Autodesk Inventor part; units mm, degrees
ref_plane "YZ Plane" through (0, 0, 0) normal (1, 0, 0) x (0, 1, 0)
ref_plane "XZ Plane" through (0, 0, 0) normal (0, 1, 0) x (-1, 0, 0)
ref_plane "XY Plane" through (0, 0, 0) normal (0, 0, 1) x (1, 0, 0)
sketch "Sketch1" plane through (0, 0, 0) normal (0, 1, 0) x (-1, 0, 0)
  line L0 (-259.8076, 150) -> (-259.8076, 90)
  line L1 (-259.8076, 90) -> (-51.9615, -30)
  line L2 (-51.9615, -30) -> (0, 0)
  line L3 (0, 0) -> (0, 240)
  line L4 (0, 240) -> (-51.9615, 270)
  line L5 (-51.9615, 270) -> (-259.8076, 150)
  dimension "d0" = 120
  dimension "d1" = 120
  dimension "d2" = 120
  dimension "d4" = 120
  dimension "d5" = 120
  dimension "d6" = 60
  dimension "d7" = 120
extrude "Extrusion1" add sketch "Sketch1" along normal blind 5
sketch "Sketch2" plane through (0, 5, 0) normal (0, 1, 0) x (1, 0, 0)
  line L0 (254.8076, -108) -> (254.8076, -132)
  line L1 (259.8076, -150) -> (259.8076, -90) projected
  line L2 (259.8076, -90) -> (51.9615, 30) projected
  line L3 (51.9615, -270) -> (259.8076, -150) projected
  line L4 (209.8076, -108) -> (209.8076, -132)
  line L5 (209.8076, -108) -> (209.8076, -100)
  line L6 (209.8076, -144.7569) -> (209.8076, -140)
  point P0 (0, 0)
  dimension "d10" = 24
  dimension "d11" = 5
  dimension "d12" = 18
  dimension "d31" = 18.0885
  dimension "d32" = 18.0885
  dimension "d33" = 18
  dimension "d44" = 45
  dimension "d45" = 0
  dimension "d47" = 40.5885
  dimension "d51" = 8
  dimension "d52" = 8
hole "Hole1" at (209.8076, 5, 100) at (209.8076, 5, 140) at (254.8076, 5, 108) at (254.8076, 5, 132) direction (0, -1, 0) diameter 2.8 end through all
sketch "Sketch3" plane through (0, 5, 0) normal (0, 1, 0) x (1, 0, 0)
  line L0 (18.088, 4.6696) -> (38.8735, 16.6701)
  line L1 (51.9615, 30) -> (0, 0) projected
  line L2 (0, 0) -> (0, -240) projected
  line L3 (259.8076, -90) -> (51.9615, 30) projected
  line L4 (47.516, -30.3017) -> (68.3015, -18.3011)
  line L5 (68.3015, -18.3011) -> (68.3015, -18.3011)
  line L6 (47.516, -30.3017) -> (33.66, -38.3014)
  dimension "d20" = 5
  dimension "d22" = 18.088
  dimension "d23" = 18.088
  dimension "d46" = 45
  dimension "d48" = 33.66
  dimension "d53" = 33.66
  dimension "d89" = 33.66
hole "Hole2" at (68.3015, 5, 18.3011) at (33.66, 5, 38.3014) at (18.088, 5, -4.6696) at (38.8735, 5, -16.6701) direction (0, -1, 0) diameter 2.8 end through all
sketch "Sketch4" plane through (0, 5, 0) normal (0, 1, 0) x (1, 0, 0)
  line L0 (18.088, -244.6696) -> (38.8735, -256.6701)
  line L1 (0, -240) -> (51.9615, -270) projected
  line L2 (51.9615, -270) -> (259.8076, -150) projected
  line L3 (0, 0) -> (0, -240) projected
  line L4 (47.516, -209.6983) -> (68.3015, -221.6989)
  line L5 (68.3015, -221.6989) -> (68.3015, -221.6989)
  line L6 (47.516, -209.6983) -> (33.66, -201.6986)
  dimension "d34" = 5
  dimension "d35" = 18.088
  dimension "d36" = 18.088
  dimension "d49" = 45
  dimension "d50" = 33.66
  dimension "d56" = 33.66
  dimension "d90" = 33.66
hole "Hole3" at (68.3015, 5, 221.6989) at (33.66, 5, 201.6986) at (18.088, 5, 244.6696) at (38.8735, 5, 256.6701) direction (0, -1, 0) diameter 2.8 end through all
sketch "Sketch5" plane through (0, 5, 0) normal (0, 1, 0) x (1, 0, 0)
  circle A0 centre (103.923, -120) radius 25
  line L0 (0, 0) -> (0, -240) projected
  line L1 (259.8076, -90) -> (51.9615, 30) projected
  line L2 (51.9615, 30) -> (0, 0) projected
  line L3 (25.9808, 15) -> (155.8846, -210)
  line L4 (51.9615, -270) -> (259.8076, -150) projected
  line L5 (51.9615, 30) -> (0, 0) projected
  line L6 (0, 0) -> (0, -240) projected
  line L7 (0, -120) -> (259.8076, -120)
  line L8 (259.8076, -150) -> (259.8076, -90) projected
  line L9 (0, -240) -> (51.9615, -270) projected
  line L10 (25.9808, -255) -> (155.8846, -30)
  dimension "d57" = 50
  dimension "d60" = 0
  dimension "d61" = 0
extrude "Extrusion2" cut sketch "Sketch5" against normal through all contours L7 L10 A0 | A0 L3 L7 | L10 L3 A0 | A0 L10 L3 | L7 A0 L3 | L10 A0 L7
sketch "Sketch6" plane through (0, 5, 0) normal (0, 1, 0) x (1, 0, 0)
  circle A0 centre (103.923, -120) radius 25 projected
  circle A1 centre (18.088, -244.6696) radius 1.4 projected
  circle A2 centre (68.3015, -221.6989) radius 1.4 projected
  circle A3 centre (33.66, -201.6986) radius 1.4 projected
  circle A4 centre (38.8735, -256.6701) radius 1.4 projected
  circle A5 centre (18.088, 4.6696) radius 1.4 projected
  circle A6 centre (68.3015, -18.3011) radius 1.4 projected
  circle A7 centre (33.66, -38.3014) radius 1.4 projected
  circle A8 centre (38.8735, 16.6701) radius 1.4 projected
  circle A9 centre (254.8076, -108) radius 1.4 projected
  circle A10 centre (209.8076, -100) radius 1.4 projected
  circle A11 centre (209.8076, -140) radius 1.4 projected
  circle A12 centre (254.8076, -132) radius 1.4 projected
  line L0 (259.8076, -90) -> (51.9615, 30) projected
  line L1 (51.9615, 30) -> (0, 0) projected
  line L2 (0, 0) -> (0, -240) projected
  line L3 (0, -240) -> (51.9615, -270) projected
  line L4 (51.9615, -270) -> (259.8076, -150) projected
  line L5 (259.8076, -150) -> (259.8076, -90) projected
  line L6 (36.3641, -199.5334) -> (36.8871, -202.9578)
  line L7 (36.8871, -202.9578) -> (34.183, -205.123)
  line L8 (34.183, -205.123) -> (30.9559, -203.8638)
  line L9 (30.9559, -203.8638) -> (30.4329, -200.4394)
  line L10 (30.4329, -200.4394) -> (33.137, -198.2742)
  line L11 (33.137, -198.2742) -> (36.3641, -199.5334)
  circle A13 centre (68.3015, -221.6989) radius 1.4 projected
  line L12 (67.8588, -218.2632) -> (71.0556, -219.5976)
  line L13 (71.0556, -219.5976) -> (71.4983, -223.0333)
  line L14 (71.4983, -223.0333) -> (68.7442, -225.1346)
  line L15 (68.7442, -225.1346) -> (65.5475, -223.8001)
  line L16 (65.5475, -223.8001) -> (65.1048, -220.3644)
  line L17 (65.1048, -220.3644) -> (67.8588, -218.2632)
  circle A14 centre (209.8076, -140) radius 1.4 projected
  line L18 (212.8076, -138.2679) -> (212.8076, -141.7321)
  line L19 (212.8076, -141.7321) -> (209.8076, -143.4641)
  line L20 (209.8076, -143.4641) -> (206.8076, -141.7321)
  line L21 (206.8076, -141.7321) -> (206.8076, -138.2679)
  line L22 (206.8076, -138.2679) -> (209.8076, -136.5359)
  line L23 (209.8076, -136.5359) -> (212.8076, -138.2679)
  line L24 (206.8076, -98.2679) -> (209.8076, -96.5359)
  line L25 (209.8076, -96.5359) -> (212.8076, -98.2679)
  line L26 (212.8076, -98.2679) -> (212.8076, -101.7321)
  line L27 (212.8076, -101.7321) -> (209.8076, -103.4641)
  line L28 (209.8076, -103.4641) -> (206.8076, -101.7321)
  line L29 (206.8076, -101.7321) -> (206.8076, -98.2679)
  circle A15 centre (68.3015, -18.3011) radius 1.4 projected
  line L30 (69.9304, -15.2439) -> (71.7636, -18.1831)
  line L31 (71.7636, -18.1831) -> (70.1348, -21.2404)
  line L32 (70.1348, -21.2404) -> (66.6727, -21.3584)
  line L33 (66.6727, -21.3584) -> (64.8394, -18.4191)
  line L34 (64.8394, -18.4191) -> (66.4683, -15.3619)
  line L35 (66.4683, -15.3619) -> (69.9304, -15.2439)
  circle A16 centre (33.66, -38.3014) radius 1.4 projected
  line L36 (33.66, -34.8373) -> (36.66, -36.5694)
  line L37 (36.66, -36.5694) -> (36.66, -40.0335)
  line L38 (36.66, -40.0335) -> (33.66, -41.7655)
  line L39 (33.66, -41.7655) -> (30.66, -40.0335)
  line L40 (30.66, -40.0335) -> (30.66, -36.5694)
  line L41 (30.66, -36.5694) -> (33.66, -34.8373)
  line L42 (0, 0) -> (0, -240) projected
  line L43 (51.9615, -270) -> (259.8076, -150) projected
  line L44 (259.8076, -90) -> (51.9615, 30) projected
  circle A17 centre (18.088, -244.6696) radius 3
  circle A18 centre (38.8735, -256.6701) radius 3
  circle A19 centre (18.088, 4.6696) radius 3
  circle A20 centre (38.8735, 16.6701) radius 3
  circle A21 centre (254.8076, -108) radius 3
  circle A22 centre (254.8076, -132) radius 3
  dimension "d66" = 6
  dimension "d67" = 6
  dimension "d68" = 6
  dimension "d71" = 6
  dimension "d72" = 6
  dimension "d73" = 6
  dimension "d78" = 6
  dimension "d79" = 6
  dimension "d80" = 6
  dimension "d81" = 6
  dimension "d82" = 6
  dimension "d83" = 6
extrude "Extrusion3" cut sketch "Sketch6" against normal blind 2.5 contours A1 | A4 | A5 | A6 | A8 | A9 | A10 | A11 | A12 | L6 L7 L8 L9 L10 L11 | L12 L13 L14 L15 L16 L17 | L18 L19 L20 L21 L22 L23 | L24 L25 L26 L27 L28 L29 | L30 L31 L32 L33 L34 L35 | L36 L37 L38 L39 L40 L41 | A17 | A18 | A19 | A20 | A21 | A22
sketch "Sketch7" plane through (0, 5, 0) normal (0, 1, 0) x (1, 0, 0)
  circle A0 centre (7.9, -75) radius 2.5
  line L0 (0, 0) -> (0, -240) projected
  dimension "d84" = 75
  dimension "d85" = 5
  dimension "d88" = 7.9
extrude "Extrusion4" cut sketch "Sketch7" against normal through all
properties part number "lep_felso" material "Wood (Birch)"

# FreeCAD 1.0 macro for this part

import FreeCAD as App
import Part
import Sketcher
Q = App.Units.Quantity


def add_polygon(sketch, points):
    """Adds a closed chain of lines whose ends are joined by coincident constraints."""
    first, n = sketch.GeometryCount, len(points)
    for a, b in zip(points, points[1:] + points[:1]):
        sketch.addGeometry(Part.LineSegment(App.Vector(*a, 0), App.Vector(*b, 0)), False)
    for i in range(n):
        sketch.addConstraint(Sketcher.Constraint("Coincident", first + i, 2, first + (i + 1) % n, 1))

doc = App.newDocument("Part")
body = doc.addObject("PartDesign::Body", "Body")

# Sketch on XZ plane
sketch1 = body.newObject("Sketcher::SketchObject", "Sketch")
sketch1.AttachmentSupport = (doc.getObject("XZ_Plane"), [""])
sketch1.MapMode = "FlatFace"
add_polygon(sketch1, [(52, 270), (260, 150), (260, 90), (52, -30), (0, 0), (0, 240)])  # lines 0-5
sketch1.addConstraint(Sketcher.Constraint("Vertical", 1))
sketch1.addConstraint(Sketcher.Constraint("Vertical", 4))
sketch1.addConstraint(Sketcher.Constraint("Coincident", 3, 2, -1, 1))
sketch1.addConstraint(Sketcher.Constraint("Parallel", 0, 3))
sketch1.addConstraint(Sketcher.Constraint("Parallel", 2, 5))
sketch1.addConstraint(Sketcher.Constraint("Vertical", 2, 2, 5, 2))
sketch1.addConstraint(Sketcher.Constraint("Equal", 0, 2))
sketch1.addConstraint(Sketcher.Constraint("DistanceY", 1, 2, 1, 1, Q("60 mm")))
sketch1.addConstraint(Sketcher.Constraint("Distance", 3, Q("60 mm")))
sketch1.addConstraint(Sketcher.Constraint("DistanceY", 2, 2, 1, 2, Q("120 mm")))
sketch1.addConstraint(Sketcher.Constraint("DistanceY", 4, 1, 4, 2, Q("240 mm")))
pad1 = body.newObject("PartDesign::Pad", "Pad")
pad1.Profile = sketch1
pad1.Length = 5
pad1.Reversed = True

# Sketch on XZ plane
sketch2 = body.newObject("Sketcher::SketchObject", "Sketch001")
sketch2.AttachmentSupport = (doc.getObject("XZ_Plane"), [""])
sketch2.MapMode = "FlatFace"
sketch2.AttachmentOffset = App.Placement(App.Vector(0, 0, -5), App.Rotation())
sketch2.addGeometry(Part.Circle(App.Vector(209.8, 100, 0), App.Vector(0, 0, 1), 1.4), False)
sketch2.addGeometry(Part.Circle(App.Vector(209.8, 140, 0), App.Vector(0, 0, 1), 1.4), False)
sketch2.addGeometry(Part.Circle(App.Vector(254.8, 108, 0), App.Vector(0, 0, 1), 1.4), False)
sketch2.addGeometry(Part.Circle(App.Vector(254.8, 132, 0), App.Vector(0, 0, 1), 1.4), False)
sketch2.addConstraint(Sketcher.Constraint("Equal", 0, 1))
sketch2.addConstraint(Sketcher.Constraint("Equal", 1, 2))
sketch2.addConstraint(Sketcher.Constraint("Equal", 2, 3))
sketch2.addConstraint(Sketcher.Constraint("Vertical", 0, 3, 1, 3))
sketch2.addConstraint(Sketcher.Constraint("Vertical", 2, 3, 3, 3))
sketch2.addConstraint(Sketcher.Constraint("Diameter", 0, Q("2.8 mm")))
sketch2.addConstraint(Sketcher.Constraint("DistanceY", -1, 1, 0, 3, Q("100 mm")))
sketch2.addConstraint(Sketcher.Constraint("DistanceY", -1, 1, 1, 3, Q("140 mm")))
sketch2.addConstraint(Sketcher.Constraint("DistanceY", -1, 1, 2, 3, Q("108 mm")))
sketch2.addConstraint(Sketcher.Constraint("DistanceY", -1, 1, 3, 3, Q("132 mm")))
sketch2.addConstraint(Sketcher.Constraint("DistanceX", 0, 3, 2, 3, Q("45 mm")))
sketch2.addConstraint(Sketcher.Constraint("DistanceX", -1, 1, 0, 3, Q("209.8076 mm")))
doc.recompute()
hole = body.newObject("PartDesign::Hole", "Hole")
hole.Profile = sketch2
hole.ThreadType = "None"
hole.Diameter = 2.8
hole.DepthType = "ThroughAll"
hole.Reversed = True

# Sketch on XZ plane
sketch3 = body.newObject("Sketcher::SketchObject", "Sketch002")
sketch3.AttachmentSupport = (doc.getObject("XZ_Plane"), [""])
sketch3.MapMode = "FlatFace"
sketch3.AttachmentOffset = App.Placement(App.Vector(0, 0, -5), App.Rotation())
sketch3.addGeometry(Part.Circle(App.Vector(68.3, 18.3, 0), App.Vector(0, 0, 1), 1.4), False)
sketch3.addGeometry(Part.Circle(App.Vector(33.7, 38.3, 0), App.Vector(0, 0, 1), 1.4), False)
sketch3.addGeometry(Part.Circle(App.Vector(18.1, -4.7, 0), App.Vector(0, 0, 1), 1.4), False)
sketch3.addGeometry(Part.Circle(App.Vector(38.9, -16.7, 0), App.Vector(0, 0, 1), 1.4), False)
sketch3.addConstraint(Sketcher.Constraint("Equal", 0, 1))
sketch3.addConstraint(Sketcher.Constraint("Equal", 1, 2))
sketch3.addConstraint(Sketcher.Constraint("Equal", 2, 3))
sketch3.addConstraint(Sketcher.Constraint("Diameter", 0, Q("2.8 mm")))
sketch3.addConstraint(Sketcher.Constraint("DistanceX", -1, 1, 1, 3, Q("33.66 mm")))
sketch3.addConstraint(Sketcher.Constraint("DistanceY", 3, 3, -1, 1, Q("16.67 mm")))
sketch3.addConstraint(Sketcher.Constraint("DistanceY", -1, 1, 0, 3, Q("18.301 mm")))
sketch3.addConstraint(Sketcher.Constraint("DistanceX", -1, 1, 2, 3, Q("18.088 mm")))
sketch3.addConstraint(Sketcher.Constraint("DistanceY", 2, 3, 1, 3, Q("42.971 mm")))
sketch3.addConstraint(Sketcher.Constraint("DistanceX", 3, 3, 0, 3, Q("29.428 mm")))
sketch3.addConstraint(Sketcher.Constraint("DistanceX", -1, 1, 0, 3, Q("68.3015 mm")))
sketch3.addConstraint(Sketcher.Constraint("DistanceY", -1, 1, 1, 3, Q("38.3014 mm")))
doc.recompute()
hole2 = body.newObject("PartDesign::Hole", "Hole001")
hole2.Profile = sketch3
hole2.ThreadType = "None"
hole2.Diameter = 2.8
hole2.DepthType = "ThroughAll"
hole2.Reversed = True

# Sketch on XZ plane
sketch4 = body.newObject("Sketcher::SketchObject", "Sketch003")
sketch4.AttachmentSupport = (doc.getObject("XZ_Plane"), [""])
sketch4.MapMode = "FlatFace"
sketch4.AttachmentOffset = App.Placement(App.Vector(0, 0, -5), App.Rotation())
sketch4.addGeometry(Part.Circle(App.Vector(68.3, 221.7, 0), App.Vector(0, 0, 1), 1.4), False)
sketch4.addGeometry(Part.Circle(App.Vector(33.7, 201.7, 0), App.Vector(0, 0, 1), 1.4), False)
sketch4.addGeometry(Part.Circle(App.Vector(18.1, 244.7, 0), App.Vector(0, 0, 1), 1.4), False)
sketch4.addGeometry(Part.Circle(App.Vector(38.9, 256.7, 0), App.Vector(0, 0, 1), 1.4), False)
sketch4.addConstraint(Sketcher.Constraint("Equal", 0, 1))
sketch4.addConstraint(Sketcher.Constraint("Equal", 1, 2))
sketch4.addConstraint(Sketcher.Constraint("Equal", 2, 3))
sketch4.addConstraint(Sketcher.Constraint("Diameter", 0, Q("2.8 mm")))
sketch4.addConstraint(Sketcher.Constraint("DistanceX", -1, 1, 1, 3, Q("33.66 mm")))
sketch4.addConstraint(Sketcher.Constraint("DistanceY", -1, 1, 3, 3, Q("256.67 mm")))
sketch4.addConstraint(Sketcher.Constraint("DistanceY", -1, 1, 0, 3, Q("221.699 mm")))
sketch4.addConstraint(Sketcher.Constraint("DistanceX", -1, 1, 2, 3, Q("18.088 mm")))
sketch4.addConstraint(Sketcher.Constraint("DistanceY", 1, 3, 2, 3, Q("42.971 mm")))
sketch4.addConstraint(Sketcher.Constraint("DistanceX", 3, 3, 0, 3, Q("29.428 mm")))
sketch4.addConstraint(Sketcher.Constraint("DistanceX", -1, 1, 0, 3, Q("68.3015 mm")))
sketch4.addConstraint(Sketcher.Constraint("DistanceY", -1, 1, 1, 3, Q("201.6986 mm")))
doc.recompute()
hole3 = body.newObject("PartDesign::Hole", "Hole002")
hole3.Profile = sketch4
hole3.ThreadType = "None"
hole3.Diameter = 2.8
hole3.DepthType = "ThroughAll"
hole3.Reversed = True

# Sketch on XZ plane
sketch5 = body.newObject("Sketcher::SketchObject", "Sketch004")
sketch5.AttachmentSupport = (doc.getObject("XZ_Plane"), [""])
sketch5.MapMode = "FlatFace"
sketch5.AttachmentOffset = App.Placement(App.Vector(0, 0, -5), App.Rotation())
sketch5.addGeometry(Part.Circle(App.Vector(104, 120, 0), App.Vector(0, 0, 1), 25), False)
sketch5.addConstraint(Sketcher.Constraint("Diameter", 0, Q("50 mm")))
sketch5.addConstraint(Sketcher.Constraint("DistanceY", -1, 1, 0, 3, Q("120 mm")))
sketch5.addConstraint(Sketcher.Constraint("DistanceX", -1, 1, 0, 3, Q("103.923 mm")))
pocket1 = body.newObject("PartDesign::Pocket", "Pocket")
pocket1.Profile = sketch5
pocket1.Type = "ThroughAll"
pocket1.Reversed = True

# Sketch on XZ plane
sketch6 = body.newObject("Sketcher::SketchObject", "Sketch005")
sketch6.AttachmentSupport = (doc.getObject("XZ_Plane"), [""])
sketch6.MapMode = "FlatFace"
sketch6.AttachmentOffset = App.Placement(App.Vector(0, 0, -5), App.Rotation())
sketch6.addGeometry(Part.Circle(App.Vector(18.1, 244.7, 0), App.Vector(0, 0, 1), 3), False)  # 0
sketch6.addGeometry(Part.Circle(App.Vector(38.9, 256.7, 0), App.Vector(0, 0, 1), 3), False)  # 1
sketch6.addGeometry(Part.Circle(App.Vector(18.1, -4.7, 0), App.Vector(0, 0, 1), 3), False)  # 2
add_polygon(sketch6, [(71.8, 18.2), (69.9, 15.2), (66.5, 15.4), (64.8, 18.4), (66.7, 21.4), (70.1, 21.2)])  # lines 3-8
sketch6.addGeometry(Part.Circle(App.Vector(38.9, -16.7, 0), App.Vector(0, 0, 1), 3), False)  # 9
sketch6.addGeometry(Part.Circle(App.Vector(254.8, 108, 0), App.Vector(0, 0, 1), 3), False)  # 10
add_polygon(sketch6, [(209.8, 96.5), (206.8, 98.3), (206.8, 101.7), (209.8, 103.5), (212.8, 101.7), (212.8, 98.3)])  # lines 11-16
add_polygon(sketch6, [(212.8, 141.7), (212.8, 138.3), (209.8, 136.5), (206.8, 138.3), (206.8, 141.7), (209.8, 143.5)])  # lines 17-22
sketch6.addGeometry(Part.Circle(App.Vector(254.8, 132, 0), App.Vector(0, 0, 1), 3), False)  # 23
add_polygon(sketch6, [(36.9, 203), (36.4, 199.5), (33.1, 198.3), (30.4, 200.4), (31, 203.9), (34.2, 205.1)])  # lines 24-29
sketch6.addGeometry(Part.Circle(App.Vector(33.7, 201.7, 0), App.Vector(0, 0, 1), 1.4), False)  # 30
add_polygon(sketch6, [(71.1, 219.6), (67.9, 218.3), (65.1, 220.4), (65.5, 223.8), (68.7, 225.1), (71.5, 223)])  # lines 31-36
sketch6.addGeometry(Part.Circle(App.Vector(68.3, 221.7, 0), App.Vector(0, 0, 1), 1.4), False)  # 37
add_polygon(sketch6, [(36.7, 36.6), (33.7, 34.8), (30.7, 36.6), (30.7, 40), (33.7, 41.8), (36.7, 40)])  # lines 38-43
sketch6.addGeometry(Part.Circle(App.Vector(33.7, 38.3, 0), App.Vector(0, 0, 1), 1.4), False)  # 44
sketch6.addConstraint(Sketcher.Constraint("Vertical", 12))
sketch6.addConstraint(Sketcher.Constraint("Vertical", 15))
sketch6.addConstraint(Sketcher.Constraint("Vertical", 17))
sketch6.addConstraint(Sketcher.Constraint("Vertical", 20))
sketch6.addConstraint(Sketcher.Constraint("Vertical", 40))
sketch6.addConstraint(Sketcher.Constraint("Vertical", 43))
sketch6.addConstraint(Sketcher.Constraint("Equal", 0, 1))
sketch6.addConstraint(Sketcher.Constraint("Equal", 1, 2))
sketch6.addConstraint(Sketcher.Constraint("Equal", 2, 9))
sketch6.addConstraint(Sketcher.Constraint("Equal", 9, 10))
sketch6.addConstraint(Sketcher.Constraint("Equal", 10, 23))
sketch6.addConstraint(Sketcher.Constraint("Equal", 30, 37))
sketch6.addConstraint(Sketcher.Constraint("Equal", 37, 44))
sketch6.addConstraint(Sketcher.Constraint("Parallel", 3, 6))
sketch6.addConstraint(Sketcher.Constraint("Parallel", 4, 7))
sketch6.addConstraint(Sketcher.Constraint("Parallel", 5, 8))
sketch6.addConstraint(Sketcher.Constraint("Parallel", 11, 14))
sketch6.addConstraint(Sketcher.Constraint("Parallel", 13, 16))
sketch6.addConstraint(Sketcher.Constraint("Parallel", 16, 18))
sketch6.addConstraint(Sketcher.Constraint("Parallel", 14, 19))
sketch6.addConstraint(Sketcher.Constraint("Parallel", 18, 21))
sketch6.addConstraint(Sketcher.Constraint("Parallel", 19, 22))
sketch6.addConstraint(Sketcher.Constraint("Parallel", 24, 27))
sketch6.addConstraint(Sketcher.Constraint("Parallel", 25, 28))
sketch6.addConstraint(Sketcher.Constraint("Parallel", 26, 29))
sketch6.addConstraint(Sketcher.Constraint("Parallel", 31, 34))
sketch6.addConstraint(Sketcher.Constraint("Parallel", 32, 35))
sketch6.addConstraint(Sketcher.Constraint("Parallel", 33, 36))
sketch6.addConstraint(Sketcher.Constraint("Parallel", 21, 38))
sketch6.addConstraint(Sketcher.Constraint("Parallel", 22, 39))
sketch6.addConstraint(Sketcher.Constraint("Parallel", 38, 41))
sketch6.addConstraint(Sketcher.Constraint("Parallel", 39, 42))
sketch6.addConstraint(Sketcher.Constraint("Horizontal", 12, 2, 14, 2))
sketch6.addConstraint(Sketcher.Constraint("Horizontal", 11, 2, 15, 2))
sketch6.addConstraint(Sketcher.Constraint("Horizontal", 17, 2, 19, 2))
sketch6.addConstraint(Sketcher.Constraint("Horizontal", 20, 2, 22, 2))
sketch6.addConstraint(Sketcher.Constraint("Horizontal", 40, 2, 42, 2))
sketch6.addConstraint(Sketcher.Constraint("Horizontal", 39, 2, 43, 2))
sketch6.addConstraint(Sketcher.Constraint("Vertical", 0, 3, 2, 3))
sketch6.addConstraint(Sketcher.Constraint("Vertical", 1, 3, 9, 3))
sketch6.addConstraint(Sketcher.Constraint("Vertical", 10, 3, 23, 3))
sketch6.addConstraint(Sketcher.Constraint("Vertical", 30, 3, 44, 3))
sketch6.addConstraint(Sketcher.Constraint("Vertical", 13, 2, 16, 2))
sketch6.addConstraint(Sketcher.Constraint("Vertical", 15, 2, 17, 2))
sketch6.addConstraint(Sketcher.Constraint("Vertical", 16, 2, 18, 2))
sketch6.addConstraint(Sketcher.Constraint("Vertical", 44, 3, 38, 2))
sketch6.addConstraint(Sketcher.Constraint("Equal", 15, 17))
sketch6.addConstraint(Sketcher.Constraint("Equal", 20, 40))
sketch6.addConstraint(Sketcher.Constraint("Equal", 3, 4))
sketch6.addConstraint(Sketcher.Constraint("Equal", 4, 5))
sketch6.addConstraint(Sketcher.Constraint("Equal", 5, 6))
sketch6.addConstraint(Sketcher.Constraint("Equal", 8, 11))
sketch6.addConstraint(Sketcher.Constraint("Equal", 22, 24))
sketch6.addConstraint(Sketcher.Constraint("Equal", 24, 25))
sketch6.addConstraint(Sketcher.Constraint("Equal", 25, 26))
sketch6.addConstraint(Sketcher.Constraint("Equal", 26, 27))
sketch6.addConstraint(Sketcher.Constraint("Equal", 29, 31))
sketch6.addConstraint(Sketcher.Constraint("Equal", 31, 32))
sketch6.addConstraint(Sketcher.Constraint("Equal", 32, 33))
sketch6.addConstraint(Sketcher.Constraint("Equal", 33, 34))
sketch6.addConstraint(Sketcher.Constraint("Equal", 36, 38))
sketch6.addConstraint(Sketcher.Constraint("Diameter", 0, Q("6 mm")))
sketch6.addConstraint(Sketcher.Constraint("DistanceX", 12, 2, 14, 2, Q("6 mm")))
sketch6.addConstraint(Sketcher.Constraint("Diameter", 30, Q("2.8 mm")))
sketch6.addConstraint(Sketcher.Constraint("Angle", 11, Q("150.0007 deg")))
sketch6.addConstraint(Sketcher.Constraint("DistanceY", -1, 1, 10, 3, Q("108 mm")))
sketch6.addConstraint(Sketcher.Constraint("DistanceY", -1, 1, 23, 3, Q("132 mm")))
sketch6.addConstraint(Sketcher.Constraint("DistanceX", 11, 2, 10, 3, Q("48 mm")))
sketch6.addConstraint(Sketcher.Constraint("DistanceY", 15, 2, 17, 2, Q("40 mm")))
sketch6.addConstraint(Sketcher.Constraint("DistanceY", -1, 1, 33, 2, Q("223.8 mm")))
sketch6.addConstraint(Sketcher.Constraint("Angle", 5, Q("118.049 deg")))
sketch6.addConstraint(Sketcher.Constraint("DistanceY", 40, 1, 40, 2, Q("3.464 mm")))
sketch6.addConstraint(Sketcher.Constraint("DistanceY", -1, 1, 1, 3, Q("256.67 mm")))
sketch6.addConstraint(Sketcher.Constraint("DistanceY", 9, 3, -1, 1, Q("16.67 mm")))
sketch6.addConstraint(Sketcher.Constraint("DistanceX", -1, 1, 30, 3, Q("33.66 mm")))
sketch6.addConstraint(Sketcher.Constraint("DistanceX", 26, 2, 28, 2, Q("3.75 mm")))
sketch6.addConstraint(Sketcher.Constraint("DistanceY", 31, 2, 35, 2, Q("4.77 mm")))
sketch6.addConstraint(Sketcher.Constraint("DistanceX", -1, 1, 0, 3, Q("18.088 mm")))
sketch6.addConstraint(Sketcher.Constraint("DistanceY", -1, 1, 37, 3, Q("221.699 mm")))
sketch6.addConstraint(Sketcher.Constraint("DistanceY", -1, 1, 3, 2, Q("15.244 mm")))
sketch6.addConstraint(Sketcher.Constraint("DistanceY", -1, 1, 4, 2, Q("15.362 mm")))
sketch6.addConstraint(Sketcher.Constraint("DistanceY", -1, 1, 8, 2, Q("18.183 mm")))
sketch6.addConstraint(Sketcher.Constraint("DistanceY", -1, 1, 11, 2, Q("98.268 mm")))
sketch6.addConstraint(Sketcher.Constraint("DistanceX", -1, 1, 24, 2, Q("36.364 mm")))
sketch6.addConstraint(Sketcher.Constraint("DistanceX", -1, 1, 25, 2, Q("33.137 mm")))
sketch6.addConstraint(Sketcher.Constraint("DistanceX", -1, 1, 26, 2, Q("30.433 mm")))
sketch6.addConstraint(Sketcher.Constraint("DistanceY", -1, 1, 28, 2, Q("205.123 mm")))
sketch6.addConstraint(Sketcher.Constraint("DistanceX", 9, 3, 10, 3, Q("215.934 mm")))
sketch6.addConstraint(Sketcher.Constraint("DistanceY", 30, 3, 0, 3, Q("42.971 mm")))
sketch6.addConstraint(Sketcher.Constraint("DistanceX", 1, 3, 37, 3, Q("29.428 mm")))
sketch6.addConstraint(Sketcher.Constraint("DistanceY", 2, 3, 44, 3, Q("42.971 mm")))
sketch6.addConstraint(Sketcher.Constraint("DistanceX", 9, 3, 3, 2, Q("31.057 mm")))
sketch6.addConstraint(Sketcher.Constraint("DistanceY", 6, 2, 44, 3, Q("16.943 mm")))
sketch6.addConstraint(Sketcher.Constraint("DistanceX", 32, 2, 31, 2, Q("2.754 mm")))
sketch6.addConstraint(Sketcher.Constraint("DistanceY", 24, 2, 32, 2, Q("20.831 mm")))
sketch6.addConstraint(Sketcher.Constraint("DistanceX", 33, 2, 37, 3, Q("2.754 mm")))
sketch6.addConstraint(Sketcher.Constraint("DistanceX", 29, 2, 34, 2, Q("31.857 mm")))
sketch6.addConstraint(Sketcher.Constraint("DistanceY", 38, 2, 44, 3, Q("3.464 mm")))
sketch6.addConstraint(Sketcher.Constraint("DistanceY", -1, 1, 0, 3, Q("244.6696 mm")))
pocket2 = body.newObject("PartDesign::Pocket", "Pocket001")
pocket2.Profile = sketch6
pocket2.Length = 2.5
pocket2.Reversed = True

# Sketch on XZ plane
sketch7 = body.newObject("Sketcher::SketchObject", "Sketch006")
sketch7.AttachmentSupport = (doc.getObject("XZ_Plane"), [""])
sketch7.MapMode = "FlatFace"
sketch7.AttachmentOffset = App.Placement(App.Vector(0, 0, -5), App.Rotation())
sketch7.addGeometry(Part.Circle(App.Vector(7.9, 75, 0), App.Vector(0, 0, 1), 2.5), False)
sketch7.addConstraint(Sketcher.Constraint("Diameter", 0, Q("5 mm")))
sketch7.addConstraint(Sketcher.Constraint("DistanceY", -1, 1, 0, 3, Q("75 mm")))
sketch7.addConstraint(Sketcher.Constraint("DistanceX", -1, 1, 0, 3, Q("7.9 mm")))
pocket3 = body.newObject("PartDesign::Pocket", "Pocket002")
pocket3.Profile = sketch7
pocket3.Type = "ThroughAll"
pocket3.Reversed = True

doc.recompute()
